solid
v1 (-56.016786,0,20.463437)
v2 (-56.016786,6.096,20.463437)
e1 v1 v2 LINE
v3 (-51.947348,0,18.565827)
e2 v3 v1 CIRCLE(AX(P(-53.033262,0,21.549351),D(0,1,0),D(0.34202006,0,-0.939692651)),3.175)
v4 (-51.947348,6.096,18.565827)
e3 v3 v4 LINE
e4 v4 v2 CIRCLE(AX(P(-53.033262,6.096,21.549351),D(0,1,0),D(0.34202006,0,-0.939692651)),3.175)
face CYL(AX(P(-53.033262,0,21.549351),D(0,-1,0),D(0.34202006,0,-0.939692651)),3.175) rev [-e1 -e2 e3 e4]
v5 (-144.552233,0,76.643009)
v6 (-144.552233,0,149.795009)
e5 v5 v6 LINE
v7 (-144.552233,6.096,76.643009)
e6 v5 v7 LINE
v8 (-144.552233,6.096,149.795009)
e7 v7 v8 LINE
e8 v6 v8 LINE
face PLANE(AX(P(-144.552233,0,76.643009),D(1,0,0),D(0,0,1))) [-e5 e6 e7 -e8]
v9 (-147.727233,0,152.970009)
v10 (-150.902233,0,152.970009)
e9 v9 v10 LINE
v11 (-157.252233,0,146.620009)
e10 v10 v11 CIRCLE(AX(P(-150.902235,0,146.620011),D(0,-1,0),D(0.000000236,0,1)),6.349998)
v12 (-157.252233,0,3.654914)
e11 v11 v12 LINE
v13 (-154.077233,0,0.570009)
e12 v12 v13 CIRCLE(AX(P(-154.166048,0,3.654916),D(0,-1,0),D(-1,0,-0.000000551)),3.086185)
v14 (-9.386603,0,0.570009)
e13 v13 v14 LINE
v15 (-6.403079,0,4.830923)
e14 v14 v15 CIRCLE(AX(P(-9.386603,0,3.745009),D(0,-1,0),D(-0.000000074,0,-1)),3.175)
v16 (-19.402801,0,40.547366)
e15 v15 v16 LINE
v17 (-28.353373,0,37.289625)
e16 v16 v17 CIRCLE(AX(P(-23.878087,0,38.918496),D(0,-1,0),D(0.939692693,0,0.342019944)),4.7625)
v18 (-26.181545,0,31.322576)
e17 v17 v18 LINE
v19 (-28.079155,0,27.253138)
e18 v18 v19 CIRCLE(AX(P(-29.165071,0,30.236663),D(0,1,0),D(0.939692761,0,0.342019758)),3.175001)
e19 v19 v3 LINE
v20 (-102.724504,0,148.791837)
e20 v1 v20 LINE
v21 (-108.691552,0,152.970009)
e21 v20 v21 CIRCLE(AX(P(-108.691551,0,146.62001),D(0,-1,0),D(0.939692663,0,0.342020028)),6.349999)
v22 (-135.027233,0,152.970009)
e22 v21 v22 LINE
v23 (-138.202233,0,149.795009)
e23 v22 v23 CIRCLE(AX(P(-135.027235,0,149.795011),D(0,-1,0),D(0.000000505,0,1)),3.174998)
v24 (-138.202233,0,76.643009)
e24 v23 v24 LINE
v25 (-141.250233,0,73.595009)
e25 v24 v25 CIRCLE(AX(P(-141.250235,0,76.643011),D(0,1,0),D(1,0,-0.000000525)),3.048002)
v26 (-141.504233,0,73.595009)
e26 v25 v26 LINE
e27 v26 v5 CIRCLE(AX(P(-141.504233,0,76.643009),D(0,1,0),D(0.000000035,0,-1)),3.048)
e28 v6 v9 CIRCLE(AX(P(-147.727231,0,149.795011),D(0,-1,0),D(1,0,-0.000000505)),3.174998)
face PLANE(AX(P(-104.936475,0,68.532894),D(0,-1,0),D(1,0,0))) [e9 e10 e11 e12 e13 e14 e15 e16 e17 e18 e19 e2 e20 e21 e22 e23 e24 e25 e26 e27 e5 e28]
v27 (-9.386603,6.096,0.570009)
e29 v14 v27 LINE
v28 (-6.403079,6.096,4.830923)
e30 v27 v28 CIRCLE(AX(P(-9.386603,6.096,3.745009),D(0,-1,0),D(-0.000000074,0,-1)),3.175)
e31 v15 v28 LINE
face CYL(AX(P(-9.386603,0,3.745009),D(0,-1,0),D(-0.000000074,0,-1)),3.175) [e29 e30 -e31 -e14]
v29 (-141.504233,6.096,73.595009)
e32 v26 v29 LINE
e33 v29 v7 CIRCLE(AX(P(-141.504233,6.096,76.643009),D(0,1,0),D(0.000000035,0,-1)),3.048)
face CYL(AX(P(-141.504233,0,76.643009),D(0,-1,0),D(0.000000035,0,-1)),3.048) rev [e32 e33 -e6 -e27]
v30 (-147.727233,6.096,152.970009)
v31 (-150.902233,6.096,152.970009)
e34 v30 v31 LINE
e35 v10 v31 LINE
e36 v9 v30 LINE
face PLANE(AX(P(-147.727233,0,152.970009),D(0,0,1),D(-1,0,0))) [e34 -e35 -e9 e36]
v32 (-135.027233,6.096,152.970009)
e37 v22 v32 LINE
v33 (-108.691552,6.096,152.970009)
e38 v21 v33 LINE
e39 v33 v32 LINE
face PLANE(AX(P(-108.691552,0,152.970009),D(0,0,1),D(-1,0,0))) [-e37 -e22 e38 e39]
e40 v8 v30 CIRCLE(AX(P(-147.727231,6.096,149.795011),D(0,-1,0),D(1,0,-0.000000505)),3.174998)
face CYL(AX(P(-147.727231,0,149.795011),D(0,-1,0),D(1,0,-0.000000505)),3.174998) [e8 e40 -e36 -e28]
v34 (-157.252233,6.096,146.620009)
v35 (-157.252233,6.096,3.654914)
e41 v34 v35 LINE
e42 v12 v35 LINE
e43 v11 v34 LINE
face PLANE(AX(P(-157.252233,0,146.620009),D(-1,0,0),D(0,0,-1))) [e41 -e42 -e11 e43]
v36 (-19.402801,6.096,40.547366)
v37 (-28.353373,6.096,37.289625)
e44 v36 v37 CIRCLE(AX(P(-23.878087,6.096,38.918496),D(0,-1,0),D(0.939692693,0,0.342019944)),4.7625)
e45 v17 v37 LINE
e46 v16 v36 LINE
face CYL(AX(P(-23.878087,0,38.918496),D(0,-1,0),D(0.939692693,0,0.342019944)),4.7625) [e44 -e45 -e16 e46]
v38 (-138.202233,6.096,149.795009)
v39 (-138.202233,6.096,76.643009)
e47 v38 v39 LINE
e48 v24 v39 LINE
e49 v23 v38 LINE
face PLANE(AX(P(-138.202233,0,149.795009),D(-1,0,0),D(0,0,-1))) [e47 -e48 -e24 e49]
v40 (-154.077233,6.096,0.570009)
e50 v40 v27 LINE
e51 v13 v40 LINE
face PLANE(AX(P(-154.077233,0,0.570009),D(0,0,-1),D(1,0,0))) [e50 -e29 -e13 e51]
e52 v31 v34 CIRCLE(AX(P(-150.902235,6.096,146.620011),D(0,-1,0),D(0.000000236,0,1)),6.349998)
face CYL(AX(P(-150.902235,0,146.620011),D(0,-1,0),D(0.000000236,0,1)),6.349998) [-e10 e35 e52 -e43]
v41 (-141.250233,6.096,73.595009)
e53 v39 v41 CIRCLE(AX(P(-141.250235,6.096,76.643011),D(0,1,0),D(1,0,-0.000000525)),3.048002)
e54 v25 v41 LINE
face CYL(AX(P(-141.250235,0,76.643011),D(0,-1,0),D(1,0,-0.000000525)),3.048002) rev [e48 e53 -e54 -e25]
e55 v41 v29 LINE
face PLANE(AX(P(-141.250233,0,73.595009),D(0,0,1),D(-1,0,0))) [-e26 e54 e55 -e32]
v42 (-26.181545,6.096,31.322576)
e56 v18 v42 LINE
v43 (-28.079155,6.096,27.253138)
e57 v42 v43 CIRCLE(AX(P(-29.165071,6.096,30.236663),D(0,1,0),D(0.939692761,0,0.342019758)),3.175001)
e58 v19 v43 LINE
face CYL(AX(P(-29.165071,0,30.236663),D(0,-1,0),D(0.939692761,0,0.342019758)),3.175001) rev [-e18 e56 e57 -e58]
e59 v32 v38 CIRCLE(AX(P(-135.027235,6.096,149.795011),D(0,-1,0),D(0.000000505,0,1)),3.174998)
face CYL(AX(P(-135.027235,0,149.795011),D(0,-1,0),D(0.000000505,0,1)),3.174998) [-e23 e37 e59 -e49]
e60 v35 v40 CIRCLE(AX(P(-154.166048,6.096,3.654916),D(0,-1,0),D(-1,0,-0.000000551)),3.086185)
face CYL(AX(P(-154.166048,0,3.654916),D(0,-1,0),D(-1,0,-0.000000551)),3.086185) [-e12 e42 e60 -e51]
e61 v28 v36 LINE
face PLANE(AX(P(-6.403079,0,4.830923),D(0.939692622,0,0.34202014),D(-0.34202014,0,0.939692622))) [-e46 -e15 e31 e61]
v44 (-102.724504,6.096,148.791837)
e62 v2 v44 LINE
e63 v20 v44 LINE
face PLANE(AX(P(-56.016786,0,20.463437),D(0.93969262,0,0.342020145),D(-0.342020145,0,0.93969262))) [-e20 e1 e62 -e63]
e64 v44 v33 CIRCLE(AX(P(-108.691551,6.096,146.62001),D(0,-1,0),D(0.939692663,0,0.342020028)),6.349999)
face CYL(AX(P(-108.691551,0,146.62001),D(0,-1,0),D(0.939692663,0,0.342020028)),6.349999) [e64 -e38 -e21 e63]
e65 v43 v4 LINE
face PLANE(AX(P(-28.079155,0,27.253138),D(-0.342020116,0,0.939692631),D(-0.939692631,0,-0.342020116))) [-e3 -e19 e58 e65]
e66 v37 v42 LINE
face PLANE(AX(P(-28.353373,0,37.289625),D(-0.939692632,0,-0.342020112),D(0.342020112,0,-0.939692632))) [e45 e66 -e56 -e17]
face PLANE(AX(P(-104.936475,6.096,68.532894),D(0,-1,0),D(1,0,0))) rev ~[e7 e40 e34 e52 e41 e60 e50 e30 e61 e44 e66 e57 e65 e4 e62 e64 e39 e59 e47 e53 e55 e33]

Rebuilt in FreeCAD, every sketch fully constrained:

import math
import FreeCAD as App
import Part
import Sketcher
from FreeCAD import Vector
Q = App.Units.Quantity

doc = App.newDocument("Part")
params = doc.addObject("Spreadsheet::Sheet", "Params")
for row, (alias, value) in enumerate([
    ("sketch1_radius", "0.2499999 in"),
    ("sketch1_radius2", "0.1200001 in"),
    ("sketch1_length", "1 in"),
    ("sketch1_radius3", "0.125 in"),
    ("sketch1_radius4", "0.1875 in"),
    ("pad1_length", "0.24 in"),
], start=1):
    params.set(f"A{row}", alias)
    params.set(f"B{row}", "=" + value)
    params.setAlias(f"B{row}", alias)

body = doc.addObject("PartDesign::Body", "Body")

sketch1 = body.newObject("Sketcher::SketchObject", "Sketch")
sketch1.AttachmentSupport = (doc.getObject("XZ_Plane"), [""])
sketch1.MapMode = "FlatFace"
sketch1.addGeometry([
    Part.LineSegment(Vector(-147.73, 152.97, 0), Vector(-150.9, 152.97, 0)),
    Part.ArcOfCircle(Part.Circle(Vector(-150.9, 146.62, 0), Vector(0, 0, 1), 6.35), math.radians(90), math.radians(180)),
    Part.LineSegment(Vector(-157.25, 146.62, 0), Vector(-157.25, 3.65, 0)),
    Part.ArcOfCircle(Part.Circle(Vector(-154.17, 3.65, 0), Vector(0, 0, 1), 3.09), math.radians(-180), math.radians(-88)),
    Part.LineSegment(Vector(-154.08, 0.57, 0), Vector(-9.39, 0.57, 0)),
    Part.ArcOfCircle(Part.Circle(Vector(-9.39, 3.75, 0), Vector(0, 0, 1), 3.17), math.radians(-90), math.radians(20)),
    Part.LineSegment(Vector(-6.4, 4.83, 0), Vector(-19.4, 40.55, 0)),
    Part.ArcOfCircle(Part.Circle(Vector(-23.88, 38.92, 0), Vector(0, 0, 1), 4.76), math.radians(20), math.radians(200)),
    Part.LineSegment(Vector(-28.35, 37.29, 0), Vector(-26.18, 31.32, 0)),
    Part.ArcOfCircle(Part.Circle(Vector(-29.17, 30.24, 0), Vector(0, 0, 1), 3.18), math.radians(-70), math.radians(20)),
    Part.LineSegment(Vector(-28.08, 27.25, 0), Vector(-51.95, 18.57, 0)),
    Part.ArcOfCircle(Part.Circle(Vector(-53.03, 21.55, 0), Vector(0, 0, 1), 3.18), math.radians(-160), math.radians(-70)),
    Part.LineSegment(Vector(-56.02, 20.46, 0), Vector(-102.72, 148.79, 0)),
    Part.ArcOfCircle(Part.Circle(Vector(-108.69, 146.62, 0), Vector(0, 0, 1), 6.35), math.radians(20), math.radians(90)),
    Part.LineSegment(Vector(-108.69, 152.97, 0), Vector(-135.03, 152.97, 0)),
    Part.ArcOfCircle(Part.Circle(Vector(-135.03, 149.8, 0), Vector(0, 0, 1), 3.17), math.radians(90), math.radians(180)),
    Part.LineSegment(Vector(-138.2, 149.8, 0), Vector(-138.2, 76.64, 0)),
    Part.ArcOfCircle(Part.Circle(Vector(-141.25, 76.64, 0), Vector(0, 0, 1), 3.05), math.radians(-90), math.radians(0)),
    Part.LineSegment(Vector(-141.25, 73.6, 0), Vector(-141.5, 73.6, 0)),
    Part.ArcOfCircle(Part.Circle(Vector(-141.5, 76.64, 0), Vector(0, 0, 1), 3.05), math.radians(180), math.radians(270)),
    Part.LineSegment(Vector(-144.55, 76.64, 0), Vector(-144.55, 149.8, 0)),
    Part.ArcOfCircle(Part.Circle(Vector(-147.73, 149.8, 0), Vector(0, 0, 1), 3.17), math.radians(0), math.radians(90)),
], False)
sketch1.addConstraint([
    Sketcher.Constraint("Tangent", 0, 2, 1, 1),
    Sketcher.Constraint("Tangent", 1, 2, 2, 1),
    Sketcher.Constraint("Tangent", 2, 2, 3, 1),
    Sketcher.Constraint("Coincident", 3, 2, 4, 1),
    Sketcher.Constraint("Tangent", 4, 2, 5, 1),
    Sketcher.Constraint("Tangent", 5, 2, 6, 1),
    Sketcher.Constraint("Tangent", 6, 2, 7, 1),
    Sketcher.Constraint("Tangent", 7, 2, 8, 1),
    Sketcher.Constraint("Tangent", 8, 2, 9, 2),
    Sketcher.Constraint("Tangent", 9, 1, 10, 1),
    Sketcher.Constraint("Tangent", 10, 2, 11, 2),
    Sketcher.Constraint("Tangent", 11, 1, 12, 1),
    Sketcher.Constraint("Tangent", 12, 2, 13, 1),
    Sketcher.Constraint("Tangent", 13, 2, 14, 1),
    Sketcher.Constraint("Tangent", 14, 2, 15, 1),
    Sketcher.Constraint("Tangent", 15, 2, 16, 1),
    Sketcher.Constraint("Tangent", 16, 2, 17, 2),
    Sketcher.Constraint("Tangent", 17, 1, 18, 1),
    Sketcher.Constraint("Tangent", 18, 2, 19, 2),
    Sketcher.Constraint("Tangent", 19, 1, 20, 1),
    Sketcher.Constraint("Tangent", 20, 2, 21, 1),
    Sketcher.Constraint("Tangent", 21, 2, 0, 1),
    Sketcher.Constraint("Horizontal", 0),
    Sketcher.Constraint("Vertical", 2),
    Sketcher.Constraint("Horizontal", 4),
    Sketcher.Constraint("Horizontal", 14),
    Sketcher.Constraint("Vertical", 16),
    Sketcher.Constraint("Horizontal", 18),
    Sketcher.Constraint("Vertical", 20),
    Sketcher.Constraint("Equal", 5, 9),
    Sketcher.Constraint("Equal", 9, 11),
    Sketcher.Constraint("Equal", 1, 13),
    Sketcher.Constraint("Equal", 11, 15),
    Sketcher.Constraint("Equal", 17, 19),
    Sketcher.Constraint("Equal", 15, 21),
    Sketcher.Constraint("Parallel", 6, 8),
    Sketcher.Constraint("Perpendicular", 8, 10),
    Sketcher.Constraint("Perpendicular", 10, 12),
    Sketcher.Constraint("Horizontal", 1, 3, 13, 3),
    Sketcher.Constraint("Radius", 1, Q("0.2499999 in")),
    Sketcher.Constraint("Radius", 17, Q("0.1200001 in")),
    Sketcher.Constraint("Distance", 10, Q("1 in")),
    Sketcher.Constraint("Angle", 6, Q("110 deg")),
    Sketcher.Constraint("Radius", 5, Q("0.125 in")),
    Sketcher.Constraint("Radius", 7, Q("0.1875 in")),
    Sketcher.Constraint("DistanceX", 18, 2, 18, 1, Q("0.01 in")),
    Sketcher.Constraint("DistanceY", 16, 2, 16, 1, Q("2.88 in")),
    Sketcher.Constraint("DistanceX", 0, 2, 15, 2, Q("0.5 in")),
    Sketcher.Constraint("Distance", 8, Q("0.25 in")),
    Sketcher.Constraint("DistanceY", 5, 3, 1, 3, Q("5.6250001 in")),
    Sketcher.Constraint("DistanceX", 2, 2, 3, 2, Q("0.125 in")),
    Sketcher.Constraint("Radius", 3, 3.086185),
    Sketcher.Constraint("DistanceX", 6, 2, 5, 2, Q("0.5118001 in")),
    Sketcher.Constraint("DistanceX", 4, 1, 4, 2, 144.69063),
    Sketcher.Constraint("DistanceX", 6, 2, -1, 1, 19.402801),
    Sketcher.Constraint("DistanceY", -1, 1, 1, 3, 146.620011),
])
sketch1.setExpression("Constraints[39]", "Params.sketch1_radius")
sketch1.setExpression("Constraints[40]", "Params.sketch1_radius2")
sketch1.setExpression("Constraints[41]", "Params.sketch1_length")
sketch1.setExpression("Constraints[43]", "Params.sketch1_radius3")
sketch1.setExpression("Constraints[44]", "Params.sketch1_radius4")
pad1 = body.newObject("PartDesign::Pad", "Pad")
pad1.Profile = sketch1
pad1.setExpression("Length", "Params.pad1_length")
pad1.Reversed = True

doc.recompute()
